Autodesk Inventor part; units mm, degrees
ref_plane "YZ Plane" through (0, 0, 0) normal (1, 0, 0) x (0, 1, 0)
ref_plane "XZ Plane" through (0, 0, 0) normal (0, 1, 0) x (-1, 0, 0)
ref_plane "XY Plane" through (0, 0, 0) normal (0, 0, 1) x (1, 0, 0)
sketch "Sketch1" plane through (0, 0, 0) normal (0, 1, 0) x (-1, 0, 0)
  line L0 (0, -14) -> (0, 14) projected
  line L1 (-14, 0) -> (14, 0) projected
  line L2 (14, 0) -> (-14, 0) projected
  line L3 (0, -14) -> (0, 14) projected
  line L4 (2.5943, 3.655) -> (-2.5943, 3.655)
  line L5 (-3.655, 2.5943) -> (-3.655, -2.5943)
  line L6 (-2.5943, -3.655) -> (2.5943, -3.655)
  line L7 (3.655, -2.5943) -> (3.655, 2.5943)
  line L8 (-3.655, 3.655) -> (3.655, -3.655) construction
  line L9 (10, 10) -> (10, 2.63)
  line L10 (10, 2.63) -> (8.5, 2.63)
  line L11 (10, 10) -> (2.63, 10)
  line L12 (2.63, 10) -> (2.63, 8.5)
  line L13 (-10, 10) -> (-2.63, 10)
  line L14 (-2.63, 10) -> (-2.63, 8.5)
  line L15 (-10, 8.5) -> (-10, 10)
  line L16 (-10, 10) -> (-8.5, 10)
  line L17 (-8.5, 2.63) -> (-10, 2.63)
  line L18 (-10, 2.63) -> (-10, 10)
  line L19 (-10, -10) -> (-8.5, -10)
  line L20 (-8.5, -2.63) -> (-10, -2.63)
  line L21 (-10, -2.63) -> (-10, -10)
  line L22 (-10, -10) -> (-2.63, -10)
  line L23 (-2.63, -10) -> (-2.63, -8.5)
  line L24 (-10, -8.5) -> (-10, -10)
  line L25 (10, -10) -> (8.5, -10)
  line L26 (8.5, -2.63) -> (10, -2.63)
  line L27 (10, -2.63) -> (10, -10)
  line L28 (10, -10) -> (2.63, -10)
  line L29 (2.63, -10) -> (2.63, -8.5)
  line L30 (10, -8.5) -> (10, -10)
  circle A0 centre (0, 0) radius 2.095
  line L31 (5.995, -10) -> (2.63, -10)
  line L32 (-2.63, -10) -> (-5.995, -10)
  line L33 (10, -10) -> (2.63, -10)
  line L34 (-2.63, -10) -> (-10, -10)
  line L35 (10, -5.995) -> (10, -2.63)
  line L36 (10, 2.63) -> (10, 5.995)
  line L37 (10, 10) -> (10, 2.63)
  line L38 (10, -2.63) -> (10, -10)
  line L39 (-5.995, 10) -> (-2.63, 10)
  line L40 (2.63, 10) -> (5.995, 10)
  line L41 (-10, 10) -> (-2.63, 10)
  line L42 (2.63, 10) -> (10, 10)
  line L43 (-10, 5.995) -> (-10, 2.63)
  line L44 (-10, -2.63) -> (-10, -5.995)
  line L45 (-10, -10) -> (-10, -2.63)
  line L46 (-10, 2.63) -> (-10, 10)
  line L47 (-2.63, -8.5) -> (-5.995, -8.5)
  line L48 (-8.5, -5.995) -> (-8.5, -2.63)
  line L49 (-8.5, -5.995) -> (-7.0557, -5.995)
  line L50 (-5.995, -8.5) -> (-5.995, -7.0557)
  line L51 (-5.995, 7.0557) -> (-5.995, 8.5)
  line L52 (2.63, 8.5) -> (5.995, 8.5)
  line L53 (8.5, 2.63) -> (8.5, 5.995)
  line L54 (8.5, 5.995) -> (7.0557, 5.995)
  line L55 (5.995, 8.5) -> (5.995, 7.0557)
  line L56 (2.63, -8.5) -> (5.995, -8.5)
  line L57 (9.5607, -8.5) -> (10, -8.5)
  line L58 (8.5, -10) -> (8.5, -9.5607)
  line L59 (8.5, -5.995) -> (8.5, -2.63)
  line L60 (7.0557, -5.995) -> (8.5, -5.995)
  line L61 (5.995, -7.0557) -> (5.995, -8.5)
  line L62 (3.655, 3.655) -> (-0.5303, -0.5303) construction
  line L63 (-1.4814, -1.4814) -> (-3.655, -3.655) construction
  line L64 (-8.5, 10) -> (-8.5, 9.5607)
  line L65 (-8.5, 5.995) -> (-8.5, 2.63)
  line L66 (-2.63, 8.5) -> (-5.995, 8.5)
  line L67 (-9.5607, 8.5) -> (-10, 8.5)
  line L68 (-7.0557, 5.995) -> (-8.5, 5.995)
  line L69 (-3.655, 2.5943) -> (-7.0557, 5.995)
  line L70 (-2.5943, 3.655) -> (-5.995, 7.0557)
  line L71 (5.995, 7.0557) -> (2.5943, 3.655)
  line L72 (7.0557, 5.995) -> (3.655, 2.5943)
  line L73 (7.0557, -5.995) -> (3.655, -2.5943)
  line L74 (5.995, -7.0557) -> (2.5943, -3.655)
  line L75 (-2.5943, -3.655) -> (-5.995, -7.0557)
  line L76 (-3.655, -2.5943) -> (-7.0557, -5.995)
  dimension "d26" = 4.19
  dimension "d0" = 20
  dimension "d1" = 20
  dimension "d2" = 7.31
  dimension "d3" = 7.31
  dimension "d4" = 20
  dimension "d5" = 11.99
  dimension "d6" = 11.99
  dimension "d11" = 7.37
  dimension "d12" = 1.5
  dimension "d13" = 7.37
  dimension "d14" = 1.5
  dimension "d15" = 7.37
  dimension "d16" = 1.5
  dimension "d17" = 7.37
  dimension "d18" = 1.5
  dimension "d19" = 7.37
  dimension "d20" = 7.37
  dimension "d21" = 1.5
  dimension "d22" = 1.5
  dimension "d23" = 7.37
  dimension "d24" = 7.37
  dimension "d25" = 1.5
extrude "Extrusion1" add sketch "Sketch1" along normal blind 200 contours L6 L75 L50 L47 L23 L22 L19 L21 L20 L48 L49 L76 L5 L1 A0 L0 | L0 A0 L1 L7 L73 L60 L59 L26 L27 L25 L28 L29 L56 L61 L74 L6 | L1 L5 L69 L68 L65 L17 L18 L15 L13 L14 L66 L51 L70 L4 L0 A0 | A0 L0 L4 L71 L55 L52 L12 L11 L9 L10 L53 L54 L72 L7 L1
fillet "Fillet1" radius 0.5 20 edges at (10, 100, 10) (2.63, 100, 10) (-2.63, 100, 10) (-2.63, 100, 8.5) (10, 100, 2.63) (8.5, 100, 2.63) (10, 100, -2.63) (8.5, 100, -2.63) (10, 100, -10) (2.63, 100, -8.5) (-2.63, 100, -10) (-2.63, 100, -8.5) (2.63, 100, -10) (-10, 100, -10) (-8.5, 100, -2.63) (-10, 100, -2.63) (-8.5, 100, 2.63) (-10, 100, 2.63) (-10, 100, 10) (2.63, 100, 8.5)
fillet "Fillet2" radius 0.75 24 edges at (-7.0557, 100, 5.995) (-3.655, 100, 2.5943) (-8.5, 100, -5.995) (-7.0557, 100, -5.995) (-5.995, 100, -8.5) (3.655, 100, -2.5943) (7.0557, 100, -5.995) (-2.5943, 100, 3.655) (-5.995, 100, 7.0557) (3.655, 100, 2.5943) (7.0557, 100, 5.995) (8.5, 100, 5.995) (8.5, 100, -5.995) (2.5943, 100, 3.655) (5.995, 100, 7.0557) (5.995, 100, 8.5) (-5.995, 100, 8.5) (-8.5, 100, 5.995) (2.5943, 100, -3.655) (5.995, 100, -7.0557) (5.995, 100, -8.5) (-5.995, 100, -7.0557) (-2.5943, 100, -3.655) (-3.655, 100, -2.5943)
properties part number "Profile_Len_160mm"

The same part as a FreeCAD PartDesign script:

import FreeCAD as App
import Part
import Sketcher
Q = App.Units.Quantity


def edges_at(feature, points):
    """Names of the edges that pass closest to the given points."""
    edges = feature.Shape.Edges
    near = lambda p: min(range(len(edges)), key=lambda i: edges[i].distToShape(Part.Vertex(*p))[0])
    return sorted({f"Edge{near(p) + 1}" for p in points})


def add_polygon(sketch, points):
    """Adds a closed chain of lines whose ends are joined by coincident constraints."""
    first, n = sketch.GeometryCount, len(points)
    for a, b in zip(points, points[1:] + points[:1]):
        sketch.addGeometry(Part.LineSegment(App.Vector(*a, 0), App.Vector(*b, 0)), False)
    for i in range(n):
        sketch.addConstraint(Sketcher.Constraint("Coincident", first + i, 2, first + (i + 1) % n, 1))

doc = App.newDocument("Part")
body = doc.addObject("PartDesign::Body", "Body")

sketch1 = doc.addObject("Sketcher::SketchObject", "Sketch")
body.addObject(sketch1)
sketch1.AttachmentSupport = (doc.XZ_Plane, [""])
sketch1.MapMode = "FlatFace"
add_polygon(sketch1, [(2.5943, -3.655), (-2.5943, -3.655), (-5.995, -7.0557), (-5.995, -8.5), (-2.63, -8.5), (-2.63, -10), (-10, -10), (-10, -2.63), (-8.5, -2.63), (-8.5, -5.995), (-7.0557, -5.995), (-3.655, -2.5943), (-3.655, 2.5943), (-7.0557, 5.995), (-8.5, 5.995), (-8.5, 2.63), (-10, 2.63), (-10, 10), (-2.63, 10), (-2.63, 8.5), (-5.995, 8.5), (-5.995, 7.0557), (-2.5943, 3.655), (2.5943, 3.655), (5.995, 7.0557), (5.995, 8.5), (2.63, 8.5), (2.63, 10), (10, 10), (10, 2.63), (8.5, 2.63), (8.5, 5.995), (7.0557, 5.995), (3.655, 2.5943), (3.655, -2.5943), (7.0557, -5.995), (8.5, -5.995), (8.5, -2.63), (10, -2.63), (10, -10), (2.63, -10), (2.63, -8.5), (5.995, -8.5), (5.995, -7.0557)])
sketch1.addGeometry(Part.Circle(App.Vector(0, 0, 0), App.Vector(0, 0, 1), 2.095), False)
sketch1.addConstraint(Sketcher.Constraint("Horizontal", 0))
sketch1.addConstraint(Sketcher.Constraint("Vertical", 2))
sketch1.addConstraint(Sketcher.Constraint("Horizontal", 3))
sketch1.addConstraint(Sketcher.Constraint("Vertical", 4))
sketch1.addConstraint(Sketcher.Constraint("Horizontal", 5))
sketch1.addConstraint(Sketcher.Constraint("Vertical", 6))
sketch1.addConstraint(Sketcher.Constraint("Horizontal", 7))
sketch1.addConstraint(Sketcher.Constraint("Vertical", 8))
sketch1.addConstraint(Sketcher.Constraint("Horizontal", 9))
sketch1.addConstraint(Sketcher.Constraint("Vertical", 11))
sketch1.addConstraint(Sketcher.Constraint("Horizontal", 13))
sketch1.addConstraint(Sketcher.Constraint("Vertical", 14))
sketch1.addConstraint(Sketcher.Constraint("Horizontal", 15))
sketch1.addConstraint(Sketcher.Constraint("Vertical", 16))
sketch1.addConstraint(Sketcher.Constraint("Horizontal", 17))
sketch1.addConstraint(Sketcher.Constraint("Vertical", 18))
sketch1.addConstraint(Sketcher.Constraint("Horizontal", 19))
sketch1.addConstraint(Sketcher.Constraint("Vertical", 20))
sketch1.addConstraint(Sketcher.Constraint("Horizontal", 22))
sketch1.addConstraint(Sketcher.Constraint("Vertical", 24))
sketch1.addConstraint(Sketcher.Constraint("Horizontal", 25))
sketch1.addConstraint(Sketcher.Constraint("Vertical", 26))
sketch1.addConstraint(Sketcher.Constraint("Horizontal", 27))
sketch1.addConstraint(Sketcher.Constraint("Vertical", 28))
sketch1.addConstraint(Sketcher.Constraint("Horizontal", 29))
sketch1.addConstraint(Sketcher.Constraint("Vertical", 30))
sketch1.addConstraint(Sketcher.Constraint("Horizontal", 31))
sketch1.addConstraint(Sketcher.Constraint("Vertical", 33))
sketch1.addConstraint(Sketcher.Constraint("Horizontal", 35))
sketch1.addConstraint(Sketcher.Constraint("Vertical", 36))
sketch1.addConstraint(Sketcher.Constraint("Horizontal", 37))
sketch1.addConstraint(Sketcher.Constraint("Vertical", 38))
sketch1.addConstraint(Sketcher.Constraint("Horizontal", 39))
sketch1.addConstraint(Sketcher.Constraint("Vertical", 40))
sketch1.addConstraint(Sketcher.Constraint("Horizontal", 41))
sketch1.addConstraint(Sketcher.Constraint("Vertical", 42))
sketch1.addConstraint(Sketcher.Constraint("Coincident", 44, 3, -1, 1))
sketch1.addConstraint(Sketcher.Constraint("Symmetric", 0, 2, 22, 2, -1, 1))
sketch1.addConstraint(Sketcher.Constraint("Symmetric", 1, 2, 23, 2, -1, 1))
sketch1.addConstraint(Sketcher.Constraint("Symmetric", 3, 2, 25, 2, -1, 1))
sketch1.addConstraint(Sketcher.Constraint("Symmetric", 5, 2, 27, 2, -1, 1))
sketch1.addConstraint(Sketcher.Constraint("Symmetric", 7, 2, 29, 2, -1, 1))
sketch1.addConstraint(Sketcher.Constraint("Symmetric", 9, 2, 31, 2, -1, 1))
sketch1.addConstraint(Sketcher.Constraint("Symmetric", 10, 2, 32, 2, -1, 1))
sketch1.addConstraint(Sketcher.Constraint("Symmetric", 12, 2, 34, 2, -1, 1))
sketch1.addConstraint(Sketcher.Constraint("Symmetric", 14, 2, 36, 2, -1, 1))
sketch1.addConstraint(Sketcher.Constraint("Symmetric", 16, 2, 38, 2, -1, 1))
sketch1.addConstraint(Sketcher.Constraint("Symmetric", 18, 2, 40, 2, -1, 1))
sketch1.addConstraint(Sketcher.Constraint("Symmetric", 20, 2, 42, 2, -1, 1))
sketch1.addConstraint(Sketcher.Constraint("Symmetric", 20, 2, 23, 2, -2))
sketch1.addConstraint(Sketcher.Constraint("Symmetric", 18, 2, 25, 2, -2))
sketch1.addConstraint(Sketcher.Constraint("Symmetric", 16, 2, 27, 2, -2))
sketch1.addConstraint(Sketcher.Constraint("Symmetric", 14, 2, 29, 2, -2))
sketch1.addConstraint(Sketcher.Constraint("Symmetric", 12, 2, 31, 2, -2))
sketch1.addConstraint(Sketcher.Constraint("Parallel", 1, 10))
sketch1.addConstraint(Sketcher.Constraint("Perpendicular", 10, 12))
sketch1.addConstraint(Sketcher.Constraint("Parallel", 12, 21))
sketch1.addConstraint(Sketcher.Constraint("Perpendicular", 32, 34))
sketch1.addConstraint(Sketcher.Constraint("Parallel", 34, 43))
sketch1.addConstraint(Sketcher.Constraint("Horizontal", 11, 2, 32, 2))
sketch1.addConstraint(Sketcher.Constraint("Equal", 35, 2))
sketch1.addConstraint(Sketcher.Constraint("Equal", 37, 4))
sketch1.addConstraint(Sketcher.Constraint("Equal", 39, 6))
sketch1.addConstraint(Sketcher.Constraint("Equal", 41, 8))
sketch1.addConstraint(Sketcher.Constraint("Equal", 22, 11))
sketch1.addConstraint(Sketcher.Constraint("Equal", 1, 10))
sketch1.addConstraint(Sketcher.Constraint("Diameter", 44, Q("4.19 mm")))
sketch1.addConstraint(Sketcher.Constraint("DistanceX", 7, 1, 7, 2, Q("1.5 mm")))
sketch1.addConstraint(Sketcher.Constraint("DistanceX", 5, 2, 5, 1, Q("7.37 mm")))
sketch1.addConstraint(Sketcher.Constraint("DistanceY", 4, 2, -1, 1, Q("10 mm")))
sketch1.addConstraint(Sketcher.Constraint("DistanceX", 3, 1, 3, 2, Q("3.365 mm")))
sketch1.addConstraint(Sketcher.Constraint("DistanceX", 1, 2, 10, 2, Q("2.34 mm")))
sketch1.addConstraint(Sketcher.Constraint("DistanceX", 0, 2, 0, 1, Q("5.1886 mm")))
pad1 = doc.addObject("PartDesign::Pad", "Pad")
body.addObject(pad1)
pad1.Profile = sketch1
pad1.Length = 200
pad1.Reversed = True
doc.recompute()

fillet = doc.addObject("PartDesign::Fillet", "Fillet")
body.addObject(fillet)
fillet.Base = (pad1, edges_at(pad1, [
    (10, 100, 10),
    (2.63, 100, 10),
    (-2.63, 100, 10),
    (-2.63, 100, 8.5),
    (10, 100, 2.63),
    (8.5, 100, 2.63),
    (10, 100, -2.63),
    (8.5, 100, -2.63),
    (10, 100, -10),
    (2.63, 100, -8.5),
    (-2.63, 100, -10),
    (-2.63, 100, -8.5),
    (2.63, 100, -10),
    (-10, 100, -10),
    (-8.5, 100, -2.63),
    (-10, 100, -2.63),
    (-8.5, 100, 2.63),
    (-10, 100, 2.63),
    (-10, 100, 10),
    (2.63, 100, 8.5),
]))
fillet.Radius = 0.5
doc.recompute()

fillet2 = doc.addObject("PartDesign::Fillet", "Fillet001")
body.addObject(fillet2)
fillet2.Base = (fillet, edges_at(fillet, [
    (-7.056, 100, 5.995),
    (-3.655, 100, 2.594),
    (-8.5, 100, -5.995),
    (-7.056, 100, -5.995),
    (-5.995, 100, -8.5),
    (3.655, 100, -2.594),
    (7.056, 100, -5.995),
    (-2.594, 100, 3.655),
    (-5.995, 100, 7.056),
    (3.655, 100, 2.594),
    (7.056, 100, 5.995),
    (8.5, 100, 5.995),
    (8.5, 100, -5.995),
    (2.594, 100, 3.655),
    (5.995, 100, 7.056),
    (5.995, 100, 8.5),
    (-5.995, 100, 8.5),
    (-8.5, 100, 5.995),
    (2.594, 100, -3.655),
    (5.995, 100, -7.056),
    (5.995, 100, -8.5),
    (-5.995, 100, -7.056),
    (-2.594, 100, -3.655),
    (-3.655, 100, -2.594),
]))
fillet2.Radius = 0.75

doc.recompute()
